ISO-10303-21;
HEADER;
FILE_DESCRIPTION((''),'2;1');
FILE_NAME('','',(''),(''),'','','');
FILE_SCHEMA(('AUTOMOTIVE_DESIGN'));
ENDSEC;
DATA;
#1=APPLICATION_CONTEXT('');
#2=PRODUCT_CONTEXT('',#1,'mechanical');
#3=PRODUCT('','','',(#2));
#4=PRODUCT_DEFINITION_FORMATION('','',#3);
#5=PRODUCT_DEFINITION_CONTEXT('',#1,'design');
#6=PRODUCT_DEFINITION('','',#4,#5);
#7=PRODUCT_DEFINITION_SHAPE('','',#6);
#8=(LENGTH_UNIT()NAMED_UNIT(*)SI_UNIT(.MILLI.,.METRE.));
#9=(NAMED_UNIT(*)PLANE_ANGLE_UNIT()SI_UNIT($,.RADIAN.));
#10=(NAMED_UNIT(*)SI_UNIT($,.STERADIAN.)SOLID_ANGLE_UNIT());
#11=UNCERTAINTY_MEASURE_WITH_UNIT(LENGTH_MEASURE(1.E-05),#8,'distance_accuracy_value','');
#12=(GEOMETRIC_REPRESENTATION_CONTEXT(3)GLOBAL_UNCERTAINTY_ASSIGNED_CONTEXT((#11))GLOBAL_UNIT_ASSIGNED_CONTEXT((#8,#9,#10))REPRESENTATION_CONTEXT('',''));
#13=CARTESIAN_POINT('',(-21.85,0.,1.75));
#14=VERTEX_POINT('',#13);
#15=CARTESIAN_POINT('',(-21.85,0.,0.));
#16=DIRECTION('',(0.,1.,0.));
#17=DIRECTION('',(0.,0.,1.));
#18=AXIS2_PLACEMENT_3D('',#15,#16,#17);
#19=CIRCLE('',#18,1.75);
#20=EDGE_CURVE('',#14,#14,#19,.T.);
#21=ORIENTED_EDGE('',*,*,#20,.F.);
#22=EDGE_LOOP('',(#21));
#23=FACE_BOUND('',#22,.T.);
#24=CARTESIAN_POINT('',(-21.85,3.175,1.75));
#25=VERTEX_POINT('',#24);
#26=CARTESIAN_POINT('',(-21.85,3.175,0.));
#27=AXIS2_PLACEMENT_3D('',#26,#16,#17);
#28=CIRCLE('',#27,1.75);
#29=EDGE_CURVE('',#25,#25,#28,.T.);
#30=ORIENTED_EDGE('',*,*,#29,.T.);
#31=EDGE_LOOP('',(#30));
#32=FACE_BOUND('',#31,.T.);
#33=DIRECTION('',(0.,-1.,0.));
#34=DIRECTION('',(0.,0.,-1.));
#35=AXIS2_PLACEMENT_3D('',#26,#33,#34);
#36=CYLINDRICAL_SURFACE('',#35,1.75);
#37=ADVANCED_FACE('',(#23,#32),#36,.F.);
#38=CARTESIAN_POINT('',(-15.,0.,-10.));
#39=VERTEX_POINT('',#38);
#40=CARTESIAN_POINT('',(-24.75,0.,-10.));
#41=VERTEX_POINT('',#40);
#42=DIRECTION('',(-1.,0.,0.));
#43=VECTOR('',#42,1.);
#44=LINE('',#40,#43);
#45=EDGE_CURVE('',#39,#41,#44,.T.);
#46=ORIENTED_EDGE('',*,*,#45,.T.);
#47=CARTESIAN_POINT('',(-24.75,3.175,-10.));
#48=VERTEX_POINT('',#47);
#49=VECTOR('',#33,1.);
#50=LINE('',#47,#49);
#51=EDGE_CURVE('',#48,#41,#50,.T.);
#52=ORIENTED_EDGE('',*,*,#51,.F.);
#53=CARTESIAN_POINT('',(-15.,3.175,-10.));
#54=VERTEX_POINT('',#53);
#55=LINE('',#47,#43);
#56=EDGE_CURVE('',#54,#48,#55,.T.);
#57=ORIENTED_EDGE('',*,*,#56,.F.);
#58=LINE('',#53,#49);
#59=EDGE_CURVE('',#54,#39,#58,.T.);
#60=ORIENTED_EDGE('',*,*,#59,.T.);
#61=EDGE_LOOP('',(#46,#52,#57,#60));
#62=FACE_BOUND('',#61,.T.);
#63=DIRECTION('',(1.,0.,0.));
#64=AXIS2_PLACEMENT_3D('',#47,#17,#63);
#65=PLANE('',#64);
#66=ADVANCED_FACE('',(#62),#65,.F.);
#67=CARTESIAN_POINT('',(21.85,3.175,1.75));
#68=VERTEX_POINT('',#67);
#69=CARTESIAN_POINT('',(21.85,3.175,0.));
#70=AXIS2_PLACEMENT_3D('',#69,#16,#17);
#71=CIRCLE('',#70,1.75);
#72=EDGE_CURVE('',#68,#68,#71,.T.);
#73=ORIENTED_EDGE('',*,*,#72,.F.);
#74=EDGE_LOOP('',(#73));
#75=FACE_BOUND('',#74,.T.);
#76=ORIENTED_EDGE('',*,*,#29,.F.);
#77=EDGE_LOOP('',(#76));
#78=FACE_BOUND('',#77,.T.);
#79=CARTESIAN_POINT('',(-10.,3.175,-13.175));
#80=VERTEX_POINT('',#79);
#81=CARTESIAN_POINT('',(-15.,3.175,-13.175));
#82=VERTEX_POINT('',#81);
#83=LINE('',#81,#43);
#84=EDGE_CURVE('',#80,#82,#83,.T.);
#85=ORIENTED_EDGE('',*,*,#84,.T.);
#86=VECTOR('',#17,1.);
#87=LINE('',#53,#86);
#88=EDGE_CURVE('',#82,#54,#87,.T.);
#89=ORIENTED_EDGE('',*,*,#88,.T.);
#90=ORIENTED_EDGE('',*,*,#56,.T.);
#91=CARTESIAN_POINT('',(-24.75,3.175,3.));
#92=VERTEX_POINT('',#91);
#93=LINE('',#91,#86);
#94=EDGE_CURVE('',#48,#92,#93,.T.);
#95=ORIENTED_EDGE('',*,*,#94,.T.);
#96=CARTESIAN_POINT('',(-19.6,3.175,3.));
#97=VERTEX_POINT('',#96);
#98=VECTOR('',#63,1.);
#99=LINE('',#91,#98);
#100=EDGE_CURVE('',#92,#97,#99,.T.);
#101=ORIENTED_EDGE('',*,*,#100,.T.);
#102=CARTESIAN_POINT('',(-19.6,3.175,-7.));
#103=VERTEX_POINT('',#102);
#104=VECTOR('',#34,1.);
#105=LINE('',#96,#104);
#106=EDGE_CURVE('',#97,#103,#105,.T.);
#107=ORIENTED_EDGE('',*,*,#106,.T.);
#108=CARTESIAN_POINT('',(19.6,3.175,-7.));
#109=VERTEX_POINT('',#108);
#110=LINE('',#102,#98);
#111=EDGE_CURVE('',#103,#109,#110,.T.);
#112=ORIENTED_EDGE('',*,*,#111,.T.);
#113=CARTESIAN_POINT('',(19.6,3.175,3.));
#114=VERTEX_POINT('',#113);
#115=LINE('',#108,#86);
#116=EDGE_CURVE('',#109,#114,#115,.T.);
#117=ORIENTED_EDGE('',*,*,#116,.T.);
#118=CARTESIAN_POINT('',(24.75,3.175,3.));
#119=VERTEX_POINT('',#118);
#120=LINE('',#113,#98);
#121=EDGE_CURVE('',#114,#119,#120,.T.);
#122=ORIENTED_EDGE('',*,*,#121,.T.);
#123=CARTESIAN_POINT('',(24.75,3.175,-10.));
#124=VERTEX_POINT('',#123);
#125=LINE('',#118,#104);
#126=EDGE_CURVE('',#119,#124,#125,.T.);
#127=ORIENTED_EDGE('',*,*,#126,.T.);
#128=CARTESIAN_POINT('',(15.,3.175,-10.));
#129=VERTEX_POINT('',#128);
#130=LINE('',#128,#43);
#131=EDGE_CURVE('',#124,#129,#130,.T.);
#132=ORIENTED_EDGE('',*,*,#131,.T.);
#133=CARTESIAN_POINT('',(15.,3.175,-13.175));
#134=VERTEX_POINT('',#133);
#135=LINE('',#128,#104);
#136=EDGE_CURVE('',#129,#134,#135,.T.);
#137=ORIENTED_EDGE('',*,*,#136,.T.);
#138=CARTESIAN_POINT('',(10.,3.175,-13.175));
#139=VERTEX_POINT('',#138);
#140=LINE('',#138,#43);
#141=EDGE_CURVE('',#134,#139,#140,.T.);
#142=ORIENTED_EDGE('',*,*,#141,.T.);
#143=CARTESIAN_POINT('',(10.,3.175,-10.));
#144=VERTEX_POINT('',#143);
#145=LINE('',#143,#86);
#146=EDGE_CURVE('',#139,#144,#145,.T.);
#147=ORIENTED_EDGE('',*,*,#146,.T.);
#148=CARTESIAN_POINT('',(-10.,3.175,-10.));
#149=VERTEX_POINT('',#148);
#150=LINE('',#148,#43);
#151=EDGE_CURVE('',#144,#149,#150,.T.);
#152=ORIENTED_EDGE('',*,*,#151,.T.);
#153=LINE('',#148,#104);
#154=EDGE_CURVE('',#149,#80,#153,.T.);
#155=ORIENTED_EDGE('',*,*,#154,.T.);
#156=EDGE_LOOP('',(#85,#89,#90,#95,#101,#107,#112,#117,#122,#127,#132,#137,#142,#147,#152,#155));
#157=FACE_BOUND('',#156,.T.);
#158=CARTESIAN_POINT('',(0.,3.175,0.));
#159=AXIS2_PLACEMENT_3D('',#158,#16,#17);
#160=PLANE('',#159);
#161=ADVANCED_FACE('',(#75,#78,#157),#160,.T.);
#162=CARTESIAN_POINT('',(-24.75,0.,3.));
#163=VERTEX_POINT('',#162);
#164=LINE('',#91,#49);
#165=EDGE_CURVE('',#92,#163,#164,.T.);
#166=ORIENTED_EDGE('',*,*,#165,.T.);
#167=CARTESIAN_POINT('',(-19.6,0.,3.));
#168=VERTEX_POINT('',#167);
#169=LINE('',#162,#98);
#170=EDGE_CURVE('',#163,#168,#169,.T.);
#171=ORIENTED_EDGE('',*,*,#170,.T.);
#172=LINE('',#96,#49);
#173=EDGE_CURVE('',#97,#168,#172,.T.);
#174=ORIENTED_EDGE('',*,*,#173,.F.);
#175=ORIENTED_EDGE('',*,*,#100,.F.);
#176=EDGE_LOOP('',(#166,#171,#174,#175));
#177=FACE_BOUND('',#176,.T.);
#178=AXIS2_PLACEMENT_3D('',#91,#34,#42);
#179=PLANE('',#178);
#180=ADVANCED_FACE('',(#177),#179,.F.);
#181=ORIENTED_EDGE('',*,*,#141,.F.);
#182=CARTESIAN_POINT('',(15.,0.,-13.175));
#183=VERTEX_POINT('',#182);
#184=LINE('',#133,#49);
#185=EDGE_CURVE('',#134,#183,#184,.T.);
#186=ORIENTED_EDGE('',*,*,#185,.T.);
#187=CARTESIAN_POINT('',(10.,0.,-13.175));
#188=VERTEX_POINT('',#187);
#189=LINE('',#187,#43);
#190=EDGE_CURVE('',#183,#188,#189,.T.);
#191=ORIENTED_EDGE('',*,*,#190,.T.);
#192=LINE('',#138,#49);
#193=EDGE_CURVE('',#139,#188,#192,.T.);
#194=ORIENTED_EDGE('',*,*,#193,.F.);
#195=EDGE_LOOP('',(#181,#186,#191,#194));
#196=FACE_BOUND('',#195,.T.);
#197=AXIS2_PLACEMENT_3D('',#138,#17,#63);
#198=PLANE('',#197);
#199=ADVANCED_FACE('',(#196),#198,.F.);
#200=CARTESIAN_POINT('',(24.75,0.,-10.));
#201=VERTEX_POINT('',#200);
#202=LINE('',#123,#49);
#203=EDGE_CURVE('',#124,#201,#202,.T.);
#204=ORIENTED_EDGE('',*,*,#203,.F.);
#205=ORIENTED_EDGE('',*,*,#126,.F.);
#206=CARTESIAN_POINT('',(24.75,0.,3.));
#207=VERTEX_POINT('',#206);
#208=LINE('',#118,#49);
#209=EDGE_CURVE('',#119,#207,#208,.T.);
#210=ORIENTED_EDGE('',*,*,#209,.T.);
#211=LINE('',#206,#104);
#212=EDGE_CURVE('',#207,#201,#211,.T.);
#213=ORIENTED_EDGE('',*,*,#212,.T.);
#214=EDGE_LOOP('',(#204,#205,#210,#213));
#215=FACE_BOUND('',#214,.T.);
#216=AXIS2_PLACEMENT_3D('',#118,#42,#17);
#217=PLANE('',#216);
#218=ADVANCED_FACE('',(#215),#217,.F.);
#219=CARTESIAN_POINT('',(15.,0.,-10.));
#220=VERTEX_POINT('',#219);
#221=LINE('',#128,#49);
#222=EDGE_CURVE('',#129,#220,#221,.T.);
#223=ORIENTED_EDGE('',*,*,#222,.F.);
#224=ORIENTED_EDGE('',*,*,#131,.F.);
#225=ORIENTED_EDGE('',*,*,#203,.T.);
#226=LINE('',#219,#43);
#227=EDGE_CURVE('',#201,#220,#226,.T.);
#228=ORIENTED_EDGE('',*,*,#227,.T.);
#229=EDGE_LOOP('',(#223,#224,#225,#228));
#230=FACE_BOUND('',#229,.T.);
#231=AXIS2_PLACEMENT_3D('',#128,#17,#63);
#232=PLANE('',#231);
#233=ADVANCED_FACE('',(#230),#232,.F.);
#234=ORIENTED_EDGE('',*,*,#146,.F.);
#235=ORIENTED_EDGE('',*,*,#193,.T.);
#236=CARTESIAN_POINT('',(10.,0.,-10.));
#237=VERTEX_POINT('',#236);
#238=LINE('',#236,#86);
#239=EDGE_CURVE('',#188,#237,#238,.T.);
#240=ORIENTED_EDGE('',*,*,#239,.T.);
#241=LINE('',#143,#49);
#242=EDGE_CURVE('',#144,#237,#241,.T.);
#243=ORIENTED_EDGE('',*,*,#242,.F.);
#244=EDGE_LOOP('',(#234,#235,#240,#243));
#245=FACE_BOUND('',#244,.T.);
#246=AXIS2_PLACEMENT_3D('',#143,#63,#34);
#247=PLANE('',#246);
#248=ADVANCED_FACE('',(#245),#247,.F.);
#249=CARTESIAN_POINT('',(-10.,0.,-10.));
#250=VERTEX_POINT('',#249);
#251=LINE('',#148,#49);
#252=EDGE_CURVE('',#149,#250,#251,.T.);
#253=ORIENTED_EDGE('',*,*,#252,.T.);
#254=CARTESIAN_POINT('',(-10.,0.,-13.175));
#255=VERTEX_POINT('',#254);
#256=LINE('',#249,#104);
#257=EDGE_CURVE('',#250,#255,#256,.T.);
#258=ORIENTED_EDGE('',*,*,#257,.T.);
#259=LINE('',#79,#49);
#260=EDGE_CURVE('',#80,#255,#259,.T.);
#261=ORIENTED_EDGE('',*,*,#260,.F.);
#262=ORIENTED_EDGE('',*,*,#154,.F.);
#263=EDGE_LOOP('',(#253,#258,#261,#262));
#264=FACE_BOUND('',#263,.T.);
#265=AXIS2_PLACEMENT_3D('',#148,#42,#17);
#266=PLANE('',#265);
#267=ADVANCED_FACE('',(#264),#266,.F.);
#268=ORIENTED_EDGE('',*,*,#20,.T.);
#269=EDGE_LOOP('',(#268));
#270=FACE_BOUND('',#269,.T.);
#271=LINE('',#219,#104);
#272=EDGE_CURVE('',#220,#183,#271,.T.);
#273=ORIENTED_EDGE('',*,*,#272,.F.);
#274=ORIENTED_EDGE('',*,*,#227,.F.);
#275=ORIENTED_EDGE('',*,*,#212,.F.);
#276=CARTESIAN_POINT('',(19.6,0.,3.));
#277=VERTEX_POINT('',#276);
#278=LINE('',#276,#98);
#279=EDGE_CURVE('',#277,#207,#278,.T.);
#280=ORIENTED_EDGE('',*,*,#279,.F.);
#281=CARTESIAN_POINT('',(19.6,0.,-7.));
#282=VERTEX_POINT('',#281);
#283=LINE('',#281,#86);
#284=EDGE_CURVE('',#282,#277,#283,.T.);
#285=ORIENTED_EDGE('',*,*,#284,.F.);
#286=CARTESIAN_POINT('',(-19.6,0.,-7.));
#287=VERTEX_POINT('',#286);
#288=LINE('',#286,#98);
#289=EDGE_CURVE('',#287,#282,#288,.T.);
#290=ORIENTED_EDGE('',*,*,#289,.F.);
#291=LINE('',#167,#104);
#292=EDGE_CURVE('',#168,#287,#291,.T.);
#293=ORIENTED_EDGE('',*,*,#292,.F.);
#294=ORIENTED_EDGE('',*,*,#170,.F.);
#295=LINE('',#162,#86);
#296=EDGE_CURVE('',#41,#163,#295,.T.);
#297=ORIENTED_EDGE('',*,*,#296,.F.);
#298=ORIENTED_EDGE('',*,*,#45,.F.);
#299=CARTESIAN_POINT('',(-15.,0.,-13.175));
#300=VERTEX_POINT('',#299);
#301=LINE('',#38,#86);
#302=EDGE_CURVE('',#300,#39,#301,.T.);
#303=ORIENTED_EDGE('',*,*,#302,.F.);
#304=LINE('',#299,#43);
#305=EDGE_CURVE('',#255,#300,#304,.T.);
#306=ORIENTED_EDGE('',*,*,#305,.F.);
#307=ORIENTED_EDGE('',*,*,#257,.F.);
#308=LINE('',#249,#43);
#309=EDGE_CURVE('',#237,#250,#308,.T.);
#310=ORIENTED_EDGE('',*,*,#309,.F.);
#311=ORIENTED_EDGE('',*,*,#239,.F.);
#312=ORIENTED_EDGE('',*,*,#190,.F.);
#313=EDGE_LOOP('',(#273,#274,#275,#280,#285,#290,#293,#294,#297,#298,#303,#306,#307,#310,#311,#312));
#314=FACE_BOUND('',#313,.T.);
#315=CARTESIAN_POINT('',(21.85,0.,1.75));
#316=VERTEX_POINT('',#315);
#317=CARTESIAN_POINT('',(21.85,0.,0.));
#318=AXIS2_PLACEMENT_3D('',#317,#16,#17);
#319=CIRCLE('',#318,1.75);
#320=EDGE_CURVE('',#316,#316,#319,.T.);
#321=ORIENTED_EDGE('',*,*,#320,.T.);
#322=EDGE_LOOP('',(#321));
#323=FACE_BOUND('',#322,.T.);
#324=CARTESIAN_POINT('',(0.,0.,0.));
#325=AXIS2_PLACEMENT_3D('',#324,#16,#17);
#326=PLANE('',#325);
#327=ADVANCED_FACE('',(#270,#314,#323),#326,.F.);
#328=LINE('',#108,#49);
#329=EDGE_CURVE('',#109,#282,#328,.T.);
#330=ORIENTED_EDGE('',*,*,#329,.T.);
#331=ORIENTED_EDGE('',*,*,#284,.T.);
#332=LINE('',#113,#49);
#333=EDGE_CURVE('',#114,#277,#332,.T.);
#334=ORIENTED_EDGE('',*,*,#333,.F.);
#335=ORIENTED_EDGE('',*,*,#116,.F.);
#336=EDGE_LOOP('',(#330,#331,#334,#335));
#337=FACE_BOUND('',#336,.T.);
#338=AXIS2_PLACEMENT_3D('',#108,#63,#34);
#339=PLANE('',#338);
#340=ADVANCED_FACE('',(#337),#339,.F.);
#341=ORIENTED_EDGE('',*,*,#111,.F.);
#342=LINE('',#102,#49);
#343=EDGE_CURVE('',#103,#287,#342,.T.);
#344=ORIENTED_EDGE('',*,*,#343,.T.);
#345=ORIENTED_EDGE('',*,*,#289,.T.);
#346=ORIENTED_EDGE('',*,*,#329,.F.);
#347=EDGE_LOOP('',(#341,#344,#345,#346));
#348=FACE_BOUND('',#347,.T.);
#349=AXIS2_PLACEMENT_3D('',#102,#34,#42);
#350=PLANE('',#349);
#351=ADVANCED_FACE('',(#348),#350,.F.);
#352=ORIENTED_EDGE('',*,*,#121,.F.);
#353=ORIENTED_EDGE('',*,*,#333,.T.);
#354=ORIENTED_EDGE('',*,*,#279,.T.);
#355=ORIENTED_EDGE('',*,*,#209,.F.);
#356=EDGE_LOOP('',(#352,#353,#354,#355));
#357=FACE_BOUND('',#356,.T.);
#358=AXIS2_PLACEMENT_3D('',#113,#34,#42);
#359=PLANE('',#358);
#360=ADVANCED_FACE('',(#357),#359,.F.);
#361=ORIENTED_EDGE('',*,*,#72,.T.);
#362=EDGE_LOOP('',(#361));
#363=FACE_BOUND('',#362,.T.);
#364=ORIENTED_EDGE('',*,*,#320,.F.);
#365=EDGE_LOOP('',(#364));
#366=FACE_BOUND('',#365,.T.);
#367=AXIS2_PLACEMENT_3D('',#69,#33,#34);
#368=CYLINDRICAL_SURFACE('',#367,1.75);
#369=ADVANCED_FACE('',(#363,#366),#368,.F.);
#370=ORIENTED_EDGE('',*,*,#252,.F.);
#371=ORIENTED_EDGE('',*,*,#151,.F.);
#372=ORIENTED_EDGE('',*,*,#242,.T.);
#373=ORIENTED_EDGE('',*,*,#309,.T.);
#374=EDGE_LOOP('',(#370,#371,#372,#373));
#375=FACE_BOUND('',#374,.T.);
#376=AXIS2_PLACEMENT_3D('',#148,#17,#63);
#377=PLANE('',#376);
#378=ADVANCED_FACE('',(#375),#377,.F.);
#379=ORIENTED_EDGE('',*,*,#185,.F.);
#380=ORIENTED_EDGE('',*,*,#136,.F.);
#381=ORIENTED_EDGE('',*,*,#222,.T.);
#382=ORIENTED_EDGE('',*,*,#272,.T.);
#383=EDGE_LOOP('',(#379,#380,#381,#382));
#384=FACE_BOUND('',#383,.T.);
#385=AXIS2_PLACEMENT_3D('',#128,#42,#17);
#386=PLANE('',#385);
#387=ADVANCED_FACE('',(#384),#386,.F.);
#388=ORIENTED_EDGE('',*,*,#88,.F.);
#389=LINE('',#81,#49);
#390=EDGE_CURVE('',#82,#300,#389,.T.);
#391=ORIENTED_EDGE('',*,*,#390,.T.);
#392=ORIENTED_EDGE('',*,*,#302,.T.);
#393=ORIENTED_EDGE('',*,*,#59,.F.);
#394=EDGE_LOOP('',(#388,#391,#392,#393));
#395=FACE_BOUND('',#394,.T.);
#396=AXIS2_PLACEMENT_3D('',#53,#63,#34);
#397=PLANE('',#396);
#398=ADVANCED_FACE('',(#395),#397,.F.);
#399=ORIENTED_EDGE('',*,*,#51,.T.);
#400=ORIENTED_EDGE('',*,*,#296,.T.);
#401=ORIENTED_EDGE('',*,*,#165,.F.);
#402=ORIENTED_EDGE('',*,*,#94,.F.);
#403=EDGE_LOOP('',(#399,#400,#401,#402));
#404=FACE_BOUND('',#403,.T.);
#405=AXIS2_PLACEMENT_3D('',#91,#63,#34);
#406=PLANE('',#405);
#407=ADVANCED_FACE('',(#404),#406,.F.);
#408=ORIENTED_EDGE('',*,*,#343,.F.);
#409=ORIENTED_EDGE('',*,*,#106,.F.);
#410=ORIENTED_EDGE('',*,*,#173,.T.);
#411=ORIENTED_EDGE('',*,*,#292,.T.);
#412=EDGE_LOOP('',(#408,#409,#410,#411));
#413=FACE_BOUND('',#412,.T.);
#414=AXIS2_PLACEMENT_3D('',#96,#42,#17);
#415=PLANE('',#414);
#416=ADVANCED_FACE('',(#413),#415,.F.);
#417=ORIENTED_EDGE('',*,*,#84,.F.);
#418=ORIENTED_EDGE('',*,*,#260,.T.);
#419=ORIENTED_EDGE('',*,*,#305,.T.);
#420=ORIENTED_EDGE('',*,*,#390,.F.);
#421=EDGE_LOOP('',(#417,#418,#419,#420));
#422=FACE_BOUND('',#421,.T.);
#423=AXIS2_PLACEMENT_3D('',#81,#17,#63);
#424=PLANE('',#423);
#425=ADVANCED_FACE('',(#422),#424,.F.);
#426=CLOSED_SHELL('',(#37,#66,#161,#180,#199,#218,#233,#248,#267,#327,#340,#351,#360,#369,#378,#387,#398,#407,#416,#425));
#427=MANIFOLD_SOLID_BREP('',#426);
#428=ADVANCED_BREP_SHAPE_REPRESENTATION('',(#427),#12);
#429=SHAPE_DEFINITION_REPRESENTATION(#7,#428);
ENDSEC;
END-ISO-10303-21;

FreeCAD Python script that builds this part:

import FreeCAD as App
import Part
import Sketcher
Q = App.Units.Quantity

doc = App.newDocument("Part")
body = doc.addObject("PartDesign::Body", "Body")

sketch1 = body.newObject("Sketcher::SketchObject", "Sketch")
sketch1.AttachmentSupport = (doc.getObject("XZ_Plane"), [""])
sketch1.MapMode = "FlatFace"
sketch1.addGeometry(Part.LineSegment(App.Vector(-24.8, -10, 0), App.Vector(-24.8, 3, 0)), False)
sketch1.addGeometry(Part.LineSegment(App.Vector(-24.8, 3, 0), App.Vector(-19.6, 3, 0)), False)
sketch1.addGeometry(Part.LineSegment(App.Vector(-19.6, 3, 0), App.Vector(-19.6, -7, 0)), False)
sketch1.addGeometry(Part.LineSegment(App.Vector(-19.6, -7, 0), App.Vector(19.6, -7, 0)), False)
sketch1.addGeometry(Part.LineSegment(App.Vector(19.6, -7, 0), App.Vector(19.6, 3, 0)), False)
sketch1.addGeometry(Part.LineSegment(App.Vector(19.6, 3, 0), App.Vector(24.8, 3, 0)), False)
sketch1.addGeometry(Part.LineSegment(App.Vector(24.8, 3, 0), App.Vector(24.8, -10, 0)), False)
sketch1.addGeometry(Part.LineSegment(App.Vector(24.8, -10, 0), App.Vector(15, -10, 0)), False)
sketch1.addGeometry(Part.LineSegment(App.Vector(15, -10, 0), App.Vector(15, -13.2, 0)), False)
sketch1.addGeometry(Part.LineSegment(App.Vector(15, -13.2, 0), App.Vector(10, -13.2, 0)), False)
sketch1.addGeometry(Part.LineSegment(App.Vector(10, -13.2, 0), App.Vector(10, -10, 0)), False)
sketch1.addGeometry(Part.LineSegment(App.Vector(10, -10, 0), App.Vector(-10, -10, 0)), False)
sketch1.addGeometry(Part.LineSegment(App.Vector(-10, -10, 0), App.Vector(-10, -13.2, 0)), False)
sketch1.addGeometry(Part.LineSegment(App.Vector(-10, -13.2, 0), App.Vector(-15, -13.2, 0)), False)
sketch1.addGeometry(Part.LineSegment(App.Vector(-15, -13.2, 0), App.Vector(-15, -10, 0)), False)
sketch1.addGeometry(Part.LineSegment(App.Vector(-15, -10, 0), App.Vector(-24.8, -10, 0)), False)
sketch1.addGeometry(Part.Circle(App.Vector(21.9, 0, 0), App.Vector(0, 0, 1), 1.8), False)
sketch1.addGeometry(Part.Circle(App.Vector(-21.9, 0, 0), App.Vector(0, 0, 1), 1.8), False)
sketch1.addConstraint(Sketcher.Constraint("Coincident", 0, 2, 1, 1))
sketch1.addConstraint(Sketcher.Constraint("Coincident", 1, 2, 2, 1))
sketch1.addConstraint(Sketcher.Constraint("Coincident", 2, 2, 3, 1))
sketch1.addConstraint(Sketcher.Constraint("Coincident", 3, 2, 4, 1))
sketch1.addConstraint(Sketcher.Constraint("Coincident", 4, 2, 5, 1))
sketch1.addConstraint(Sketcher.Constraint("Coincident", 5, 2, 6, 1))
sketch1.addConstraint(Sketcher.Constraint("Coincident", 6, 2, 7, 1))
sketch1.addConstraint(Sketcher.Constraint("Coincident", 7, 2, 8, 1))
sketch1.addConstraint(Sketcher.Constraint("Coincident", 8, 2, 9, 1))
sketch1.addConstraint(Sketcher.Constraint("Coincident", 9, 2, 10, 1))
sketch1.addConstraint(Sketcher.Constraint("Coincident", 10, 2, 11, 1))
sketch1.addConstraint(Sketcher.Constraint("Coincident", 11, 2, 12, 1))
sketch1.addConstraint(Sketcher.Constraint("Coincident", 12, 2, 13, 1))
sketch1.addConstraint(Sketcher.Constraint("Coincident", 13, 2, 14, 1))
sketch1.addConstraint(Sketcher.Constraint("Coincident", 14, 2, 15, 1))
sketch1.addConstraint(Sketcher.Constraint("Coincident", 15, 2, 0, 1))
sketch1.addConstraint(Sketcher.Constraint("Vertical", 0))
sketch1.addConstraint(Sketcher.Constraint("Horizontal", 1))
sketch1.addConstraint(Sketcher.Constraint("Vertical", 2))
sketch1.addConstraint(Sketcher.Constraint("Horizontal", 3))
sketch1.addConstraint(Sketcher.Constraint("Vertical", 4))
sketch1.addConstraint(Sketcher.Constraint("Horizontal", 5))
sketch1.addConstraint(Sketcher.Constraint("Vertical", 6))
sketch1.addConstraint(Sketcher.Constraint("Horizontal", 7))
sketch1.addConstraint(Sketcher.Constraint("Vertical", 8))
sketch1.addConstraint(Sketcher.Constraint("Horizontal", 9))
sketch1.addConstraint(Sketcher.Constraint("Vertical", 10))
sketch1.addConstraint(Sketcher.Constraint("Horizontal", 11))
sketch1.addConstraint(Sketcher.Constraint("Vertical", 12))
sketch1.addConstraint(Sketcher.Constraint("Horizontal", 13))
sketch1.addConstraint(Sketcher.Constraint("Vertical", 14))
sketch1.addConstraint(Sketcher.Constraint("Horizontal", 15))
sketch1.addConstraint(Sketcher.Constraint("Equal", 16, 17))
sketch1.addConstraint(Sketcher.Constraint("Symmetric", 16, 3, 17, 3, -1, 1))
sketch1.addConstraint(Sketcher.Constraint("Symmetric", 1, 2, 4, 2, -2))
sketch1.addConstraint(Sketcher.Constraint("Symmetric", 9, 2, 12, 2, -2))
sketch1.addConstraint(Sketcher.Constraint("Symmetric", 7, 2, 14, 2, -2))
sketch1.addConstraint(Sketcher.Constraint("PointOnObject", 16, 3, -1))
sketch1.addConstraint(Sketcher.Constraint("Horizontal", 7, 2, 10, 2))
sketch1.addConstraint(Sketcher.Constraint("Equal", 1, 5))
sketch1.addConstraint(Sketcher.Constraint("Diameter", 16, Q("3.5 mm")))
sketch1.addConstraint(Sketcher.Constraint("DistanceX", 9, 2, 9, 1, Q("5 mm")))
sketch1.addConstraint(Sketcher.Constraint("DistanceX", 11, 2, 11, 1, Q("20 mm")))
sketch1.addConstraint(Sketcher.Constraint("DistanceY", 0, 1, 0, 2, Q("13 mm")))
sketch1.addConstraint(Sketcher.Constraint("DistanceY", 2, 2, 2, 1, Q("10 mm")))
sketch1.addConstraint(Sketcher.Constraint("DistanceX", 3, 1, 3, 2, Q("39.2 mm")))
sketch1.addConstraint(Sketcher.Constraint("DistanceY", -1, 1, 0, 2, Q("3 mm")))
sketch1.addConstraint(Sketcher.Constraint("DistanceX", 1, 1, 1, 2, Q("5.15 mm")))
sketch1.addConstraint(Sketcher.Constraint("DistanceX", 17, 3, 16, 3, Q("43.7 mm")))
sketch1.addConstraint(Sketcher.Constraint("DistanceY", 8, 2, 8, 1, Q("3.175 mm")))
pad1 = body.newObject("PartDesign::Pad", "Pad")
pad1.Profile = sketch1
pad1.Length = 3.175
pad1.Reversed = True

doc.recompute()
